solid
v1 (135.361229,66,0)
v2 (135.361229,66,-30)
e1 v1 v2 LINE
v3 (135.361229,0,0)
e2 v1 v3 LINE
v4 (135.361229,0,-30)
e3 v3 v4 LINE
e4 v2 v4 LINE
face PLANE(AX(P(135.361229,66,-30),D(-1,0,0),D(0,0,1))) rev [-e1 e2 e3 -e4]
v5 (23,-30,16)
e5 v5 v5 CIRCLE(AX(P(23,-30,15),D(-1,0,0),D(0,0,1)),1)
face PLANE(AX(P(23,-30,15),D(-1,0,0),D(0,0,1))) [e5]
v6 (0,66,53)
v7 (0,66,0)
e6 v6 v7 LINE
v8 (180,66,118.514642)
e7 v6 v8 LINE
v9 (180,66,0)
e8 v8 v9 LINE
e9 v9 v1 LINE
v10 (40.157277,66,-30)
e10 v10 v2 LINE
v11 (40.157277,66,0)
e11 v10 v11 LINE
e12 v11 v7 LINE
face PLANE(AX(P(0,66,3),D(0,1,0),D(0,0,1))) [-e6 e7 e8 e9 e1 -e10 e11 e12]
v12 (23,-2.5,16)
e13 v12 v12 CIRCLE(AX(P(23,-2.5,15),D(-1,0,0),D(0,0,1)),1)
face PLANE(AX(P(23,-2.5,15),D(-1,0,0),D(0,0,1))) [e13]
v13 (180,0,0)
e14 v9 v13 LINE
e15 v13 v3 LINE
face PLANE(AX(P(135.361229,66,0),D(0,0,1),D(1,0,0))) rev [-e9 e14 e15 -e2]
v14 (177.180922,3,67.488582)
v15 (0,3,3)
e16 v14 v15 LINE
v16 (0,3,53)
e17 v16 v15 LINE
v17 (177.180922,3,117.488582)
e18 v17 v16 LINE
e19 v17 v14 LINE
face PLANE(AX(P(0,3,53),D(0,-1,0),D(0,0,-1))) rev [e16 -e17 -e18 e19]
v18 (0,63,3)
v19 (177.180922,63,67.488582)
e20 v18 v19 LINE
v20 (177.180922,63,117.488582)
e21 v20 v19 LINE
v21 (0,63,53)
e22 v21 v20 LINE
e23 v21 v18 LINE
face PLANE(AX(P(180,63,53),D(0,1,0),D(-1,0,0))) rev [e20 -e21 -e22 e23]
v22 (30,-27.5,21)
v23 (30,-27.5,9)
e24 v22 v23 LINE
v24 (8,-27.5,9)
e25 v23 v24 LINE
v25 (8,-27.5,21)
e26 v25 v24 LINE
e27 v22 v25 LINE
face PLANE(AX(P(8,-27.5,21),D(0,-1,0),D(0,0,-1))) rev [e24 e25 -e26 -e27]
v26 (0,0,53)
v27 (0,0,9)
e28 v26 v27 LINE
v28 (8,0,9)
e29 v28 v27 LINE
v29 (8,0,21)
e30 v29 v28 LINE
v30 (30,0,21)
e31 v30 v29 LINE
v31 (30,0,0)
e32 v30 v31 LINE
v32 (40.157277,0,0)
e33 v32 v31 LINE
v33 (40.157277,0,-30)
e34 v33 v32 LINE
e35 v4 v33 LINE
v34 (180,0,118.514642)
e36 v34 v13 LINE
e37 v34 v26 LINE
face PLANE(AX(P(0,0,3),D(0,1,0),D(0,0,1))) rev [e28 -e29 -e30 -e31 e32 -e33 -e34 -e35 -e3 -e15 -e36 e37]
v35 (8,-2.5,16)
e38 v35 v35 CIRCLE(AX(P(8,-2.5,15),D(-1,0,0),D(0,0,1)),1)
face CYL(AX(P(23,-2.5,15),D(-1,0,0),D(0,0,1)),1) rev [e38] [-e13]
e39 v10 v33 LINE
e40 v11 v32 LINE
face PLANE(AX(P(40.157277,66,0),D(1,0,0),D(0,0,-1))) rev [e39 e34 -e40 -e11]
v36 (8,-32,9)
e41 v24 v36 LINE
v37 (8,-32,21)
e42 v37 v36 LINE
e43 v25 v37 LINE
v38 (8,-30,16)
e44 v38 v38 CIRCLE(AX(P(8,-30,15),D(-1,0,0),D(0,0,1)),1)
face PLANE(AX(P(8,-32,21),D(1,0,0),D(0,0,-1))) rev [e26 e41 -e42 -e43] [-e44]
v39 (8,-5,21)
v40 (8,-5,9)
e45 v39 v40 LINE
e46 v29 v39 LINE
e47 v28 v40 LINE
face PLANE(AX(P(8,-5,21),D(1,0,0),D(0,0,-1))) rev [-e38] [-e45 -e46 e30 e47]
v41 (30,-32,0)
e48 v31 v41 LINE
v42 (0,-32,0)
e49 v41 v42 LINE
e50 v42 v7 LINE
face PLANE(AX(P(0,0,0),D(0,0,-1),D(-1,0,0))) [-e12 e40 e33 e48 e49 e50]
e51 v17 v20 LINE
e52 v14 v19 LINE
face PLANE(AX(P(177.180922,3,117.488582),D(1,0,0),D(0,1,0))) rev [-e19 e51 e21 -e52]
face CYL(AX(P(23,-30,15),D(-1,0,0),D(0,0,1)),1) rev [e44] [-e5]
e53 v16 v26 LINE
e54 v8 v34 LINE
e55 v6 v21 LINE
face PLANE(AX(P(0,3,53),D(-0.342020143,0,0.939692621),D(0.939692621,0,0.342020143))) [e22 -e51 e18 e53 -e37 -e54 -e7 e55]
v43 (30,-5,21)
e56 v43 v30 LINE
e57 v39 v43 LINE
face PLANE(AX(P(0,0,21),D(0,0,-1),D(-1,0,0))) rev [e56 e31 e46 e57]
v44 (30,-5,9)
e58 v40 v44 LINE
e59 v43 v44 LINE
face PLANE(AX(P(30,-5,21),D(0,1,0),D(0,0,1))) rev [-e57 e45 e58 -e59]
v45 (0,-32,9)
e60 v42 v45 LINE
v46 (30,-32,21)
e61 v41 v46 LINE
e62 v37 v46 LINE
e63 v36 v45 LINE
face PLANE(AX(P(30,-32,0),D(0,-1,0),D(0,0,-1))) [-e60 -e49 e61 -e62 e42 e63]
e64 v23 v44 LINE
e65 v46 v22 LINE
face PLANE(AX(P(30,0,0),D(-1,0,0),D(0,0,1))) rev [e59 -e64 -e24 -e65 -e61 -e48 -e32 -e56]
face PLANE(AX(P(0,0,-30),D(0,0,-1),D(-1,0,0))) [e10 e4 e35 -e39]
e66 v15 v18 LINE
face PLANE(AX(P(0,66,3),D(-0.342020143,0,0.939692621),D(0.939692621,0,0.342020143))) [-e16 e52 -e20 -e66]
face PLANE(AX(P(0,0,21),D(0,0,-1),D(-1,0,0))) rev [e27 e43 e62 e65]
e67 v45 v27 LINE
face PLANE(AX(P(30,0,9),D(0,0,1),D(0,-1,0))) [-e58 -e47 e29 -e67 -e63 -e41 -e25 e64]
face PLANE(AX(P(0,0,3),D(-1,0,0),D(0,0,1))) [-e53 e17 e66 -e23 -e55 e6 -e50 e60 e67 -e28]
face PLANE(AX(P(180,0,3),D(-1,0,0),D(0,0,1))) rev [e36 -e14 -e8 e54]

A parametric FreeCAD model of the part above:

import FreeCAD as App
import Part
import Sketcher
from FreeCAD import Vector
Q = App.Units.Quantity

doc = App.newDocument("Part")
body = doc.addObject("PartDesign::Body", "Body")

sketch1 = body.newObject("Sketcher::SketchObject", "Sketch")
sketch1.AttachmentSupport = (doc.getObject("XY_Plane"), [""])
sketch1.MapMode = "FlatFace"
sketch1.addGeometry(Part.LineSegment(Vector(0, 66, 0), Vector(0, 0, 0)), False)
sketch1.addGeometry(Part.LineSegment(Vector(0, 0, 0), Vector(180, 0, 0)), False)
sketch1.addGeometry(Part.LineSegment(Vector(180, 0, 0), Vector(180, 66, 0)), False)
sketch1.addGeometry(Part.LineSegment(Vector(180, 66, 0), Vector(0, 66, 0)), False)
sketch1.addConstraint(Sketcher.Constraint("Coincident", 0, 2, 1, 1))
sketch1.addConstraint(Sketcher.Constraint("Coincident", 1, 2, 2, 1))
sketch1.addConstraint(Sketcher.Constraint("Coincident", 2, 2, 3, 1))
sketch1.addConstraint(Sketcher.Constraint("Coincident", 3, 2, 0, 1))
sketch1.addConstraint(Sketcher.Constraint("Vertical", 0))
sketch1.addConstraint(Sketcher.Constraint("Horizontal", 1))
sketch1.addConstraint(Sketcher.Constraint("Vertical", 2))
sketch1.addConstraint(Sketcher.Constraint("Horizontal", 3))
sketch1.addConstraint(Sketcher.Constraint("Coincident", 0, 2, -1, 1))
sketch1.addConstraint(Sketcher.Constraint("DistanceX", 1, 1, 1, 2, 180.0))
sketch1.addConstraint(Sketcher.Constraint("DistanceY", 0, 2, 0, 1, 66.0))
pad1 = body.newObject("PartDesign::Pad", "Pad")
pad1.Profile = sketch1
pad1.Length = 3

sketch2 = body.newObject("Sketcher::SketchObject", "Sketch001")
sketch2.AttachmentSupport = (doc.getObject("XY_Plane"), [""])
sketch2.MapMode = "FlatFace"
sketch2.AttachmentOffset = App.Placement(Vector(0, 0, 3), App.Rotation())
sketch2.addGeometry(Part.LineSegment(Vector(0, 3, 0), Vector(0, 0, 0)), False)
sketch2.addGeometry(Part.LineSegment(Vector(0, 0, 0), Vector(180, 0, 0)), False)
sketch2.addGeometry(Part.LineSegment(Vector(180, 0, 0), Vector(180, 3, 0)), False)
sketch2.addGeometry(Part.LineSegment(Vector(180, 3, 0), Vector(0, 3, 0)), False)
sketch2.addGeometry(Part.LineSegment(Vector(0, 66, 0), Vector(0, 63, 0)), False)
sketch2.addGeometry(Part.LineSegment(Vector(0, 63, 0), Vector(180, 63, 0)), False)
sketch2.addGeometry(Part.LineSegment(Vector(180, 63, 0), Vector(180, 66, 0)), False)
sketch2.addGeometry(Part.LineSegment(Vector(180, 66, 0), Vector(0, 66, 0)), False)
sketch2.addConstraint(Sketcher.Constraint("Coincident", 0, 2, 1, 1))
sketch2.addConstraint(Sketcher.Constraint("Coincident", 1, 2, 2, 1))
sketch2.addConstraint(Sketcher.Constraint("Coincident", 2, 2, 3, 1))
sketch2.addConstraint(Sketcher.Constraint("Coincident", 3, 2, 0, 1))
sketch2.addConstraint(Sketcher.Constraint("Coincident", 4, 2, 5, 1))
sketch2.addConstraint(Sketcher.Constraint("Coincident", 5, 2, 6, 1))
sketch2.addConstraint(Sketcher.Constraint("Coincident", 6, 2, 7, 1))
sketch2.addConstraint(Sketcher.Constraint("Coincident", 7, 2, 4, 1))
sketch2.addConstraint(Sketcher.Constraint("Vertical", 0))
sketch2.addConstraint(Sketcher.Constraint("Horizontal", 1))
sketch2.addConstraint(Sketcher.Constraint("Vertical", 2))
sketch2.addConstraint(Sketcher.Constraint("Horizontal", 3))
sketch2.addConstraint(Sketcher.Constraint("Vertical", 4))
sketch2.addConstraint(Sketcher.Constraint("Horizontal", 5))
sketch2.addConstraint(Sketcher.Constraint("Vertical", 6))
sketch2.addConstraint(Sketcher.Constraint("Horizontal", 7))
sketch2.addConstraint(Sketcher.Constraint("Coincident", 0, 2, -1, 1))
sketch2.addConstraint(Sketcher.Constraint("PointOnObject", 4, 2, -2))
sketch2.addConstraint(Sketcher.Constraint("Vertical", 2, 2, 5, 2))
sketch2.addConstraint(Sketcher.Constraint("Equal", 2, 4))
sketch2.addConstraint(Sketcher.Constraint("DistanceX", 1, 1, 1, 2, 180.0))
sketch2.addConstraint(Sketcher.Constraint("DistanceY", 0, 2, 0, 1, 3.0))
sketch2.addConstraint(Sketcher.Constraint("DistanceY", -1, 1, 4, 2, 63.0))
pad2 = body.newObject("PartDesign::Pad", "Pad001")
pad2.Profile = sketch2
pad2.Length = 50

sketch3 = body.newObject("Sketcher::SketchObject", "Sketch002")
sketch3.AttachmentSupport = (doc.getObject("YZ_Plane"), [""])
sketch3.MapMode = "FlatFace"
sketch3.addGeometry(Part.LineSegment(Vector(0, 0, 0), Vector(-32, 0, 0)), False)
sketch3.addGeometry(Part.LineSegment(Vector(-32, 0, 0), Vector(-32, 9, 0)), False)
sketch3.addGeometry(Part.LineSegment(Vector(-32, 9, 0), Vector(0, 9, 0)), False)
sketch3.addGeometry(Part.LineSegment(Vector(0, 9, 0), Vector(0, 0, 0)), False)
sketch3.addConstraint(Sketcher.Constraint("Coincident", 0, 2, 1, 1))
sketch3.addConstraint(Sketcher.Constraint("Coincident", 1, 2, 2, 1))
sketch3.addConstraint(Sketcher.Constraint("Coincident", 2, 2, 3, 1))
sketch3.addConstraint(Sketcher.Constraint("Coincident", 3, 2, 0, 1))
sketch3.addConstraint(Sketcher.Constraint("Horizontal", 0))
sketch3.addConstraint(Sketcher.Constraint("Vertical", 1))
sketch3.addConstraint(Sketcher.Constraint("Horizontal", 2))
sketch3.addConstraint(Sketcher.Constraint("Vertical", 3))
sketch3.addConstraint(Sketcher.Constraint("Coincident", 3, 2, -1, 1))
sketch3.addConstraint(Sketcher.Constraint("DistanceX", 0, 2, 0, 1, 32.0))
sketch3.addConstraint(Sketcher.Constraint("DistanceY", 1, 1, 1, 2, 9.0))
pad3 = body.newObject("PartDesign::Pad", "Pad002")
pad3.Profile = sketch3
pad3.Length = 30

sketch4 = body.newObject("Sketcher::SketchObject", "Sketch003")
sketch4.AttachmentSupport = (doc.getObject("XY_Plane"), [""])
sketch4.MapMode = "FlatFace"
sketch4.AttachmentOffset = App.Placement(Vector(0, 0, 9), App.Rotation())
sketch4.addGeometry(Part.LineSegment(Vector(8, 0, 0), Vector(8, -5, 0)), False)
sketch4.addGeometry(Part.LineSegment(Vector(8, -5, 0), Vector(30, -5, 0)), False)
sketch4.addGeometry(Part.LineSegment(Vector(30, -5, 0), Vector(30, 0, 0)), False)
sketch4.addGeometry(Part.LineSegment(Vector(30, 0, 0), Vector(8, 0, 0)), False)
sketch4.addGeometry(Part.LineSegment(Vector(8, -27.5, 0), Vector(8, -32, 0)), False)
sketch4.addGeometry(Part.LineSegment(Vector(8, -32, 0), Vector(30, -32, 0)), False)
sketch4.addGeometry(Part.LineSegment(Vector(30, -32, 0), Vector(30, -27.5, 0)), False)
sketch4.addGeometry(Part.LineSegment(Vector(30, -27.5, 0), Vector(8, -27.5, 0)), False)
sketch4.addConstraint(Sketcher.Constraint("Coincident", 0, 2, 1, 1))
sketch4.addConstraint(Sketcher.Constraint("Coincident", 1, 2, 2, 1))
sketch4.addConstraint(Sketcher.Constraint("Coincident", 2, 2, 3, 1))
sketch4.addConstraint(Sketcher.Constraint("Coincident", 3, 2, 0, 1))
sketch4.addConstraint(Sketcher.Constraint("Coincident", 4, 2, 5, 1))
sketch4.addConstraint(Sketcher.Constraint("Coincident", 5, 2, 6, 1))
sketch4.addConstraint(Sketcher.Constraint("Coincident", 6, 2, 7, 1))
sketch4.addConstraint(Sketcher.Constraint("Coincident", 7, 2, 4, 1))
sketch4.addConstraint(Sketcher.Constraint("Vertical", 0))
sketch4.addConstraint(Sketcher.Constraint("Horizontal", 1))
sketch4.addConstraint(Sketcher.Constraint("Vertical", 2))
sketch4.addConstraint(Sketcher.Constraint("Horizontal", 3))
sketch4.addConstraint(Sketcher.Constraint("Vertical", 4))
sketch4.addConstraint(Sketcher.Constraint("Horizontal", 5))
sketch4.addConstraint(Sketcher.Constraint("Vertical", 6))
sketch4.addConstraint(Sketcher.Constraint("Horizontal", 7))
sketch4.addConstraint(Sketcher.Constraint("PointOnObject", 2, 2, -1))
sketch4.addConstraint(Sketcher.Constraint("Vertical", 3, 2, 4, 2))
sketch4.addConstraint(Sketcher.Constraint("Vertical", 2, 2, 5, 2))
sketch4.addConstraint(Sketcher.Constraint("DistanceX", 1, 1, 1, 2, 22.0))
sketch4.addConstraint(Sketcher.Constraint("DistanceY", 0, 2, 0, 1, 5.0))
sketch4.addConstraint(Sketcher.Constraint("DistanceY", 4, 2, 4, 1, 4.5))
sketch4.addConstraint(Sketcher.Constraint("DistanceX", -1, 1, 0, 2, 8.0))
sketch4.addConstraint(Sketcher.Constraint("DistanceY", 4, 2, -1, 1, 32.0))
pad4 = body.newObject("PartDesign::Pad", "Pad003")
pad4.Profile = sketch4
pad4.Length = 12

sketch5 = body.newObject("Sketcher::SketchObject", "Sketch004")
sketch5.AttachmentSupport = (doc.getObject("XY_Plane"), [""])
sketch5.MapMode = "FlatFace"
sketch5.addGeometry(Part.LineSegment(Vector(180, 66, 0), Vector(180, 0, 0)), False)
sketch5.addGeometry(Part.LineSegment(Vector(180, 0, 0), Vector(0, 0, 0)), False)
sketch5.addGeometry(Part.LineSegment(Vector(0, 0, 0), Vector(0, 66, 0)), False)
sketch5.addGeometry(Part.LineSegment(Vector(0, 66, 0), Vector(180, 66, 0)), False)
sketch5.addConstraint(Sketcher.Constraint("Coincident", 0, 2, 1, 1))
sketch5.addConstraint(Sketcher.Constraint("Coincident", 1, 2, 2, 1))
sketch5.addConstraint(Sketcher.Constraint("Coincident", 2, 2, 3, 1))
sketch5.addConstraint(Sketcher.Constraint("Coincident", 3, 2, 0, 1))
sketch5.addConstraint(Sketcher.Constraint("Vertical", 0))
sketch5.addConstraint(Sketcher.Constraint("Horizontal", 1))
sketch5.addConstraint(Sketcher.Constraint("Vertical", 2))
sketch5.addConstraint(Sketcher.Constraint("Horizontal", 3))
sketch5.addConstraint(Sketcher.Constraint("Coincident", 1, 2, -1, 1))
sketch5.addConstraint(Sketcher.Constraint("DistanceX", 1, 2, 1, 1, 180.0))
sketch5.addConstraint(Sketcher.Constraint("DistanceY", 0, 2, 0, 1, 66.0))
pad5 = body.newObject("PartDesign::Pad", "Pad004")
pad5.Profile = sketch5
pad5.Length = 30
pad5.Reversed = True

sketch6 = body.newObject("Sketcher::SketchObject", "Sketch005")
sketch6.AttachmentSupport = (doc.getObject("XZ_Plane"), [""])
sketch6.MapMode = "FlatFace"
sketch6.addGeometry(Part.LineSegment(Vector(0, 0, 0), Vector(180, 0, 0)), False)
sketch6.addGeometry(Part.LineSegment(Vector(180, 0, 0), Vector(180, 68.5, 0)), False)
sketch6.addGeometry(Part.LineSegment(Vector(180, 68.5, 0), Vector(0, 3, 0)), False)
sketch6.addGeometry(Part.LineSegment(Vector(0, 3, 0), Vector(0, 0, 0)), False)
sketch6.addConstraint(Sketcher.Constraint("Coincident", 0, 2, 1, 1))
sketch6.addConstraint(Sketcher.Constraint("Coincident", 1, 2, 2, 1))
sketch6.addConstraint(Sketcher.Constraint("Coincident", 2, 2, 3, 1))
sketch6.addConstraint(Sketcher.Constraint("Coincident", 3, 2, 0, 1))
sketch6.addConstraint(Sketcher.Constraint("Horizontal", 0))
sketch6.addConstraint(Sketcher.Constraint("Vertical", 1))
sketch6.addConstraint(Sketcher.Constraint("Vertical", 3))
sketch6.addConstraint(Sketcher.Constraint("Coincident", 3, 2, -1, 1))
sketch6.addConstraint(Sketcher.Constraint("DistanceX", 0, 1, 0, 2, 180.0))
sketch6.addConstraint(Sketcher.Constraint("DistanceY", 3, 2, 3, 1, 3.0))
sketch6.addConstraint(Sketcher.Constraint("Angle", 2, Q("-160 deg")))
pad6 = body.newObject("PartDesign::Pad", "Pad005")
pad6.Profile = sketch6
pad6.Length = 66
pad6.Reversed = True

sketch7 = body.newObject("Sketcher::SketchObject", "Sketch006")
sketch7.AttachmentSupport = (doc.getObject("XZ_Plane"), [""])
sketch7.MapMode = "FlatFace"
sketch7.addGeometry(Part.LineSegment(Vector(180, 69, 0), Vector(180, 119, 0)), False)
sketch7.addGeometry(Part.LineSegment(Vector(180, 119, 0), Vector(0, 53, 0)), False)
sketch7.addGeometry(Part.LineSegment(Vector(0, 53, 0), Vector(137, 53, 0)), False)
sketch7.addGeometry(Part.LineSegment(Vector(137, 53, 0), Vector(180, 69, 0)), False)
sketch7.addConstraint(Sketcher.Constraint("Coincident", 0, 2, 1, 1))
sketch7.addConstraint(Sketcher.Constraint("Coincident", 1, 2, 2, 1))
sketch7.addConstraint(Sketcher.Constraint("Coincident", 2, 2, 3, 1))
sketch7.addConstraint(Sketcher.Constraint("Coincident", 3, 2, 0, 1))
sketch7.addConstraint(Sketcher.Constraint("Vertical", 0))
sketch7.addConstraint(Sketcher.Constraint("Horizontal", 2))
sketch7.addConstraint(Sketcher.Constraint("PointOnObject", 1, 2, -2))
sketch7.addConstraint(Sketcher.Constraint("Parallel", 1, 3))
sketch7.addConstraint(Sketcher.Constraint("DistanceY", 0, 1, 0, 2, 50.0))
sketch7.addConstraint(Sketcher.Constraint("Angle", 1, Q("-160 deg")))
sketch7.addConstraint(Sketcher.Constraint("DistanceX", -1, 1, 0, 2, 180.0))
sketch7.addConstraint(Sketcher.Constraint("DistanceY", -1, 1, 1, 2, 53.0))
pad7 = body.newObject("PartDesign::Pad", "Pad006")
pad7.Profile = sketch7
pad7.Length = 3
pad7.Reversed = True

sketch8 = body.newObject("Sketcher::SketchObject", "Sketch007")
sketch8.AttachmentSupport = (doc.getObject("XZ_Plane"), [""])
sketch8.MapMode = "FlatFace"
sketch8.AttachmentOffset = App.Placement(Vector(0, 0, -66), App.Rotation())
sketch8.addGeometry(Part.LineSegment(Vector(180, 119, 0), Vector(180, 69, 0)), False)
sketch8.addGeometry(Part.LineSegment(Vector(180, 69, 0), Vector(137, 53, 0)), False)
sketch8.addGeometry(Part.LineSegment(Vector(137, 53, 0), Vector(0, 53, 0)), False)
sketch8.addGeometry(Part.LineSegment(Vector(0, 53, 0), Vector(180, 119, 0)), False)
sketch8.addConstraint(Sketcher.Constraint("Coincident", 0, 2, 1, 1))
sketch8.addConstraint(Sketcher.Constraint("Coincident", 1, 2, 2, 1))
sketch8.addConstraint(Sketcher.Constraint("Coincident", 2, 2, 3, 1))
sketch8.addConstraint(Sketcher.Constraint("Coincident", 3, 2, 0, 1))
sketch8.addConstraint(Sketcher.Constraint("Vertical", 0))
sketch8.addConstraint(Sketcher.Constraint("Horizontal", 2))
sketch8.addConstraint(Sketcher.Constraint("PointOnObject", 2, 2, -2))
sketch8.addConstraint(Sketcher.Constraint("Parallel", 1, 3))
sketch8.addConstraint(Sketcher.Constraint("DistanceY", 0, 2, 0, 1, 50.0))
sketch8.addConstraint(Sketcher.Constraint("Angle", 1, Q("-160 deg")))
sketch8.addConstraint(Sketcher.Constraint("DistanceX", -1, 1, 0, 2, 180.0))
sketch8.addConstraint(Sketcher.Constraint("DistanceY", -1, 1, 1, 2, 53.0))
pad8 = body.newObject("PartDesign::Pad", "Pad007")
pad8.Profile = sketch8
pad8.Length = 3

sketch9 = body.newObject("Sketcher::SketchObject", "Sketch008")
sketch9.AttachmentSupport = (doc.getObject("XZ_Plane"), [""])
sketch9.MapMode = "FlatFace"
sketch9.AttachmentOffset = App.Placement(Vector(0, 0, -63), App.Rotation())
sketch9.addGeometry(Part.LineSegment(Vector(180, 68.5, 0), Vector(180, 118.5, 0)), False)
sketch9.addGeometry(Part.LineSegment(Vector(180, 118.5, 0), Vector(177.2, 117.5, 0)), False)
sketch9.addGeometry(Part.LineSegment(Vector(177.2, 117.5, 0), Vector(177.2, 67.5, 0)), False)
sketch9.addGeometry(Part.LineSegment(Vector(177.2, 67.5, 0), Vector(180, 68.5, 0)), False)
sketch9.addConstraint(Sketcher.Constraint("Coincident", 0, 2, 1, 1))
sketch9.addConstraint(Sketcher.Constraint("Coincident", 1, 2, 2, 1))
sketch9.addConstraint(Sketcher.Constraint("Coincident", 2, 2, 3, 1))
sketch9.addConstraint(Sketcher.Constraint("Coincident", 3, 2, 0, 1))
sketch9.addConstraint(Sketcher.Constraint("Vertical", 0))
sketch9.addConstraint(Sketcher.Constraint("Vertical", 2))
sketch9.addConstraint(Sketcher.Constraint("Parallel", 1, 3))
sketch9.addConstraint(Sketcher.Constraint("DistanceY", 0, 1, 0, 2, 50.0))
sketch9.addConstraint(Sketcher.Constraint("Angle", 1, Q("-160 deg")))
sketch9.addConstraint(Sketcher.Constraint("Distance", 1, 3.0))
sketch9.addConstraint(Sketcher.Constraint("DistanceX", -1, 1, 0, 2, 180.0))
sketch9.addConstraint(Sketcher.Constraint("DistanceY", -1, 1, 1, 2, 117.488582))
pad9 = body.newObject("PartDesign::Pad", "Pad008")
pad9.Profile = sketch9
pad9.Length = 60

sketch10 = body.newObject("Sketcher::SketchObject", "Sketch009")
sketch10.AttachmentSupport = (doc.getObject("YZ_Plane"), [""])
sketch10.MapMode = "FlatFace"
sketch10.AttachmentOffset = App.Placement(Vector(0, 0, 8), App.Rotation())
sketch10.addGeometry(Part.Circle(Vector(-2.5, 15, 0), Vector(0, 0, 1), 1), False)
sketch10.addGeometry(Part.Circle(Vector(-30, 15, 0), Vector(0, 0, 1), 1), False)
sketch10.addConstraint(Sketcher.Constraint("Equal", 0, 1))
sketch10.addConstraint(Sketcher.Constraint("Horizontal", 0, 3, 1, 3))
sketch10.addConstraint(Sketcher.Constraint("Diameter", 0, 2.0))
sketch10.addConstraint(Sketcher.Constraint("DistanceY", -1, 1, 0, 3, 15.0))
sketch10.addConstraint(Sketcher.Constraint("DistanceX", 1, 3, -1, 1, 30.0))
sketch10.addConstraint(Sketcher.Constraint("DistanceX", 0, 3, -1, 1, 2.5))
pocket1 = body.newObject("PartDesign::Pocket", "Pocket")
pocket1.Profile = sketch10
pocket1.Length = 15
pocket1.Reversed = True

sketch11 = body.newObject("Sketcher::SketchObject", "Sketch010")
sketch11.AttachmentSupport = (doc.getObject("XZ_Plane"), [""])
sketch11.MapMode = "FlatFace"
sketch11.addGeometry(Part.LineSegment(Vector(0, 0, 0), Vector(0, -30, 0)), False)
sketch11.addGeometry(Part.LineSegment(Vector(0, -30, 0), Vector(40, -30, 0)), False)
sketch11.addGeometry(Part.LineSegment(Vector(40, -30, 0), Vector(40, 0, 0)), False)
sketch11.addGeometry(Part.LineSegment(Vector(40, 0, 0), Vector(0, 0, 0)), False)
sketch11.addGeometry(Part.LineSegment(Vector(135, 0, 0), Vector(135, -30, 0)), False)
sketch11.addGeometry(Part.LineSegment(Vector(135, -30, 0), Vector(180, -30, 0)), False)
sketch11.addGeometry(Part.LineSegment(Vector(180, -30, 0), Vector(180, 0, 0)), False)
sketch11.addGeometry(Part.LineSegment(Vector(180, 0, 0), Vector(135, 0, 0)), False)
sketch11.addConstraint(Sketcher.Constraint("Coincident", 0, 2, 1, 1))
sketch11.addConstraint(Sketcher.Constraint("Coincident", 1, 2, 2, 1))
sketch11.addConstraint(Sketcher.Constraint("Coincident", 2, 2, 3, 1))
sketch11.addConstraint(Sketcher.Constraint("Coincident", 3, 2, 0, 1))
sketch11.addConstraint(Sketcher.Constraint("Coincident", 4, 2, 5, 1))
sketch11.addConstraint(Sketcher.Constraint("Coincident", 5, 2, 6, 1))
sketch11.addConstraint(Sketcher.Constraint("Coincident", 6, 2, 7, 1))
sketch11.addConstraint(Sketcher.Constraint("Coincident", 7, 2, 4, 1))
sketch11.addConstraint(Sketcher.Constraint("Vertical", 0))
sketch11.addConstraint(Sketcher.Constraint("Horizontal", 1))
sketch11.addConstraint(Sketcher.Constraint("Vertical", 2))
sketch11.addConstraint(Sketcher.Constraint("Horizontal", 3))
sketch11.addConstraint(Sketcher.Constraint("Vertical", 4))
sketch11.addConstraint(Sketcher.Constraint("Horizontal", 5))
sketch11.addConstraint(Sketcher.Constraint("Vertical", 6))
sketch11.addConstraint(Sketcher.Constraint("Horizontal", 7))
sketch11.addConstraint(Sketcher.Constraint("Coincident", 3, 2, -1, 1))
sketch11.addConstraint(Sketcher.Constraint("PointOnObject", 6, 2, -1))
sketch11.addConstraint(Sketcher.Constraint("Horizontal", 1, 2, 4, 2))
sketch11.addConstraint(Sketcher.Constraint("DistanceY", 0, 2, 0, 1, 30.0))
sketch11.addConstraint(Sketcher.Constraint("DistanceX", -1, 1, 5, 2, 180.0))
sketch11.addConstraint(Sketcher.Constraint("DistanceX", 5, 1, 5, 2, 44.638771))
sketch11.addConstraint(Sketcher.Constraint("DistanceX", 1, 1, 1, 2, 40.157277))
pocket2 = body.newObject("PartDesign::Pocket", "Pocket001")
pocket2.Profile = sketch11
pocket2.Type = "ThroughAll"

doc.recompute()
